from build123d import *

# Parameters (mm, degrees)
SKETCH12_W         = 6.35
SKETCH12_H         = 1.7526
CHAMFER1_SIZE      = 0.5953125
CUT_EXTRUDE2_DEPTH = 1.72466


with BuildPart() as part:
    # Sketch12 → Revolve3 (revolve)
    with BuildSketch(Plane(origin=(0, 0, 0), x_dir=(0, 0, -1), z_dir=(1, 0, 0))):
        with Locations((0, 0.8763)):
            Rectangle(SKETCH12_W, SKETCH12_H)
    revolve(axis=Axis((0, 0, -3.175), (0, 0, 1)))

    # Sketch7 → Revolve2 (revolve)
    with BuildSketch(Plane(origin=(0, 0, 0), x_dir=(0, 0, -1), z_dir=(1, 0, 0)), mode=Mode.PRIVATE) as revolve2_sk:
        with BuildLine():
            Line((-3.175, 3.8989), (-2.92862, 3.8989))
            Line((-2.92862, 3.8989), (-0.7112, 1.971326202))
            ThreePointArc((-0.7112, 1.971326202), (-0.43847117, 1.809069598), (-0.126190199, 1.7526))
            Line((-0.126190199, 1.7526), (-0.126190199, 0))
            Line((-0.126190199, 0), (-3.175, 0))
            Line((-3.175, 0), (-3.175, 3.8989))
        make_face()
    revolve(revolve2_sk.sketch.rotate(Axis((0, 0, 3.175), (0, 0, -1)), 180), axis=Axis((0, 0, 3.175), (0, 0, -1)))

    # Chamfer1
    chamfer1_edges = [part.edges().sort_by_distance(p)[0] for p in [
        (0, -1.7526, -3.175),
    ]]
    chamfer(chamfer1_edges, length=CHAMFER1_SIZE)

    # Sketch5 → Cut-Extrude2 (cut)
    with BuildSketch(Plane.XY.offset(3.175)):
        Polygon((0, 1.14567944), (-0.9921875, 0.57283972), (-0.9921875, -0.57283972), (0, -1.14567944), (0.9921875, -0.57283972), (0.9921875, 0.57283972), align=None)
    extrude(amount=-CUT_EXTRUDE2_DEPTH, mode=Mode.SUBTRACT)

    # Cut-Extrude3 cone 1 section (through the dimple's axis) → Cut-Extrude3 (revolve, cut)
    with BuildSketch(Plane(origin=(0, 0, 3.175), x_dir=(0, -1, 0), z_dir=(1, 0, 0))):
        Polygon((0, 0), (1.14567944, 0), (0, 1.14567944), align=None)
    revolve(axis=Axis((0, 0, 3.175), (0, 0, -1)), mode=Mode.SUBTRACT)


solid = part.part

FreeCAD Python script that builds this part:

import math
import FreeCAD as App
import Part
import Sketcher
from FreeCAD import Vector
Q = App.Units.Quantity


def edges_at(feature, points):
    """Names of the edges that pass closest to the given points."""
    edges = feature.Shape.Edges
    near = lambda p: min(range(len(edges)), key=lambda i: edges[i].distToShape(Part.Vertex(*p))[0])
    return sorted({f"Edge{near(p) + 1}" for p in points})


def add_polygon(sketch, points):
    """Adds a closed chain of lines whose ends are joined by coincident constraints."""
    first, n = sketch.GeometryCount, len(points)
    for a, b in zip(points, points[1:] + points[:1]):
        sketch.addGeometry(Part.LineSegment(App.Vector(*a, 0), App.Vector(*b, 0)), False)
    for i in range(n):
        sketch.addConstraint(Sketcher.Constraint("Coincident", first + i, 2, first + (i + 1) % n, 1))

doc = App.newDocument("Part")
body = doc.addObject("PartDesign::Body", "Body")

# Sketch on YZ plane
sketch1 = body.newObject("Sketcher::SketchObject", "Sketch")
sketch1.AttachmentSupport = (doc.getObject("YZ_Plane"), [""])
sketch1.MapMode = "FlatFace"
add_polygon(sketch1, [(1.8, 3.2), (0, 3.2), (0, -3.2), (1.8, -3.2)])  # lines 0-3
sketch1.addConstraint([
    Sketcher.Constraint("Horizontal", 0),
    Sketcher.Constraint("Vertical", 1),
    Sketcher.Constraint("Horizontal", 2),
    Sketcher.Constraint("Vertical", 3),
    Sketcher.Constraint("Symmetric", 0, 2, 1, 2, -1, 1),
    Sketcher.Constraint("DistanceY", 1, 2, 1, 1, Q("0.25 in")),
    Sketcher.Constraint("DistanceX", 0, 2, 0, 1, Q("0.069 in")),
])
revolution = body.newObject("PartDesign::Revolution", "Revolution")
revolution.Profile = sketch1
revolution.ReferenceAxis = (sketch1, ["V_Axis"])
revolution.Angle = 360

# Sketch on YZ plane
sketch2 = body.newObject("Sketcher::SketchObject", "Sketch001")
sketch2.AttachmentSupport = (doc.getObject("YZ_Plane"), [""])
sketch2.MapMode = "FlatFace"
sketch2.addGeometry([
    Part.LineSegment(Vector(3.9, 2.93, 0), Vector(3.9, 3.17, 0)),  # 0
    Part.LineSegment(Vector(3.9, 3.17, 0), Vector(0, 3.17, 0)),  # 1
    Part.LineSegment(Vector(0, 3.17, 0), Vector(0, 0.13, 0)),  # 2
    Part.LineSegment(Vector(0, 0.13, 0), Vector(1.75, 0.13, 0)),  # 3
    Part.ArcOfCircle(Part.Circle(Vector(2.64, 0.13, 0), Vector(0, 0, 1), 0.89), math.radians(139), math.radians(180)),  # 4
    Part.LineSegment(Vector(1.97, 0.71, 0), Vector(3.9, 2.93, 0)),  # 5
], False)
sketch2.addConstraint([
    Sketcher.Constraint("Coincident", 0, 2, 1, 1),
    Sketcher.Constraint("Coincident", 1, 2, 2, 1),
    Sketcher.Constraint("Coincident", 2, 2, 3, 1),
    Sketcher.Constraint("Coincident", 3, 2, 4, 2),
    Sketcher.Constraint("Tangent", 4, 1, 5, 1),
    Sketcher.Constraint("Coincident", 5, 2, 0, 1),
    Sketcher.Constraint("Vertical", 0),
    Sketcher.Constraint("Horizontal", 1),
    Sketcher.Constraint("Vertical", 2),
    Sketcher.Constraint("Horizontal", 3),
    Sketcher.Constraint("PointOnObject", 1, 2, -2),
    Sketcher.Constraint("Horizontal", 4, 3, 2, 2),
    Sketcher.Constraint("Angle", 5, Q("49 deg")),
    Sketcher.Constraint("DistanceX", 3, 1, 3, 2, Q("0.069 in")),
    Sketcher.Constraint("DistanceX", 1, 2, 1, 1, Q("0.1535 in")),
    Sketcher.Constraint("DistanceY", 0, 1, 0, 2, Q("0.0097 in")),
    Sketcher.Constraint("DistanceY", -1, 1, 0, 2, Q("0.125 in")),
    Sketcher.Constraint("DistanceY", -1, 1, 4, 1, Q("0.028 in")),
])
revolution2 = body.newObject("PartDesign::Revolution", "Revolution001")
revolution2.Profile = sketch2
revolution2.ReferenceAxis = (sketch2, ["V_Axis"])
revolution2.Angle = 360
doc.recompute()

chamfer = body.newObject("PartDesign::Chamfer", "Chamfer")
chamfer.Base = (revolution2, edges_at(revolution2, [(0, -1.753, -3.175)]))
chamfer.Size = 0.595313

# Sketch on XY plane
sketch3 = body.newObject("Sketcher::SketchObject", "Sketch002")
sketch3.AttachmentSupport = (doc.getObject("XY_Plane"), [""])
sketch3.MapMode = "FlatFace"
sketch3.AttachmentOffset = App.Placement(Vector(0, 0, 0.125 * 25.4), App.Rotation())
add_polygon(sketch3, [(0, 1.1), (-1, 0.6), (-1, -0.6), (0, -1.1), (1, -0.6), (1, 0.6)])  # lines 0-5
sketch3.addConstraint([
    Sketcher.Constraint("Vertical", 1),
    Sketcher.Constraint("Vertical", 4),
    Sketcher.Constraint("Symmetric", 0, 2, 3, 2, -1, 1),
    Sketcher.Constraint("Symmetric", 2, 2, 5, 2, -1, 1),
    Sketcher.Constraint("PointOnObject", 2, 2, -2),
    Sketcher.Constraint("Parallel", 2, 5),
    Sketcher.Constraint("Horizontal", 1, 2, 3, 2),
    Sketcher.Constraint("Angle", 0, Q("-150 deg")),
    Sketcher.Constraint("DistanceX", 1, 2, 3, 2, Q("0.078125 in")),
    Sketcher.Constraint("DistanceY", 1, 2, 1, 1, 1.145679),
])
pocket1 = body.newObject("PartDesign::Pocket", "Pocket")
pocket1.Profile = sketch3
pocket1.Length = Q("0.0679 in")

# Sketch on YZ plane
sketch4 = body.newObject("Sketcher::SketchObject", "Sketch003")
sketch4.AttachmentSupport = (doc.getObject("YZ_Plane"), [""])
sketch4.MapMode = "FlatFace"
add_polygon(sketch4, [(0, 3.2), (-1.1, 3.2), (0, 2)])  # lines 0-2
sketch4.addConstraint([
    Sketcher.Constraint("Horizontal", 0),
    Sketcher.Constraint("Vertical", 2),
    Sketcher.Constraint("PointOnObject", 1, 2, -2),
    Sketcher.Constraint("Equal", 0, 2),
    Sketcher.Constraint("DistanceY", -1, 1, 0, 2, Q("0.125 in")),
    Sketcher.Constraint("DistanceX", 0, 2, 0, 1, 1.145679),
])
groove = body.newObject("PartDesign::Groove", "Groove")
groove.Profile = sketch4
groove.ReferenceAxis = (sketch4, ["V_Axis"])
groove.Angle = 360

doc.recompute()
